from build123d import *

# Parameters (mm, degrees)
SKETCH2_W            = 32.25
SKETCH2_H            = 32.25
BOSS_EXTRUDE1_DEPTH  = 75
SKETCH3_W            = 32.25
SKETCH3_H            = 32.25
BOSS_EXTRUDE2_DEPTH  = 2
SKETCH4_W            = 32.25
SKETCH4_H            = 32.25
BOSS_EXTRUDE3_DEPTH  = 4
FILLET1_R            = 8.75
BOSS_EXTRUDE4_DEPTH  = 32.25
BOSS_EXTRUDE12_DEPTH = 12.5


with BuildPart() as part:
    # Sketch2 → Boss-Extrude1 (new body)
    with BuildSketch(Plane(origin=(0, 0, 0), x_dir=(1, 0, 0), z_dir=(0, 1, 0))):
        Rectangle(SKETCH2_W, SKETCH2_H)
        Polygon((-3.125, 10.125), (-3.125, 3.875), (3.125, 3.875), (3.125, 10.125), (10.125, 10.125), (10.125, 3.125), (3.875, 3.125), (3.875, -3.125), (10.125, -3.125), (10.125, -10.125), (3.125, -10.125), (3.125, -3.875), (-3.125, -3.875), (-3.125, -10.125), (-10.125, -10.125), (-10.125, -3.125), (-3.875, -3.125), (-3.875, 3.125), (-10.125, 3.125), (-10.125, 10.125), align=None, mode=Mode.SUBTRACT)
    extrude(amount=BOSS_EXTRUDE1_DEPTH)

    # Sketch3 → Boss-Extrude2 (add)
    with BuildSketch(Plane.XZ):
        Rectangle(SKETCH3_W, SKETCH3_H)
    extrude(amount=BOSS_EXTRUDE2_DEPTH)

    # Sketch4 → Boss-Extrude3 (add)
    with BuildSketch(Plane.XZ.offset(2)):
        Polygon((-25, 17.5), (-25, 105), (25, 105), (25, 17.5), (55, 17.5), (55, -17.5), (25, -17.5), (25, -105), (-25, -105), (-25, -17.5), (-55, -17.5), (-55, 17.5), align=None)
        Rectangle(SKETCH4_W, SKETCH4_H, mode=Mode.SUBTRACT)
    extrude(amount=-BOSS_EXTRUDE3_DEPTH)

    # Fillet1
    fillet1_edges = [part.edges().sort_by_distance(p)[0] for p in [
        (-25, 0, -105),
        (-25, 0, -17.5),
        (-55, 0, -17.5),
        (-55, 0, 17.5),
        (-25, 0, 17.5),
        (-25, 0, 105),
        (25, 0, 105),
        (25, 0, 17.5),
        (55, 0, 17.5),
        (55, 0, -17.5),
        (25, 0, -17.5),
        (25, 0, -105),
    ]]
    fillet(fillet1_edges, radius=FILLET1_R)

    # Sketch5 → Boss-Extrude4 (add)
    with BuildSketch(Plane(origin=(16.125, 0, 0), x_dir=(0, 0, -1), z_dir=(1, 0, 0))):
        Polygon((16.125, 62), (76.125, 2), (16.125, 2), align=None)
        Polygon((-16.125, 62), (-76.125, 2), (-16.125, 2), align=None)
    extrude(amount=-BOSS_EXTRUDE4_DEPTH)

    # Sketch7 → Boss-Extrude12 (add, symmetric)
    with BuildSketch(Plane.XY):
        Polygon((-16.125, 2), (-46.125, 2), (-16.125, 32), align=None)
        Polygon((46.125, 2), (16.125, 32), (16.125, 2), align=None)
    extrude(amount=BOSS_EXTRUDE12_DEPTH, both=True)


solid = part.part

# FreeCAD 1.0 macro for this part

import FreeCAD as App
import Part
import Sketcher
from FreeCAD import Vector


def edges_at(feature, points):
    """Names of the edges that pass closest to the given points."""
    edges = feature.Shape.Edges
    near = lambda p: min(range(len(edges)), key=lambda i: edges[i].distToShape(Part.Vertex(*p))[0])
    return sorted({f"Edge{near(p) + 1}" for p in points})

doc = App.newDocument("Part")
params = doc.addObject("Spreadsheet::Sheet", "Params")
for row, (alias, value) in enumerate([
    ("sketch1_width", "7 mm"),
    ("sketch1_width2", "32.25 mm"),
    ("pad1_length", "75 mm"),
    ("sketch2_width", "32.25 mm"),
    ("pad2_length", "2 mm"),
    ("sketch3_width", "30 mm"),
    ("sketch3_width2", "50 mm"),
    ("sketch3_height", "35 mm"),
    ("sketch3_height2", "87.5 mm"),
    ("sketch3_width3", "32.25 mm"),
    ("pad3_length", "4 mm"),
    ("fillet_radius", "8.75 mm"),
    ("sketch4_width", "60 mm"),
    ("pad4_length", "32.25 mm"),
    ("sketch5_width", "30 mm"),
    ("pad5_length", "25 mm"),
], start=1):
    params.set(f"A{row}", alias)
    params.set(f"B{row}", "=" + value)
    params.setAlias(f"B{row}", alias)

body = doc.addObject("PartDesign::Body", "Body")

# Sketch on XZ plane
sketch1 = doc.addObject("Sketcher::SketchObject", "Sketch")
body.addObject(sketch1)
sketch1.AttachmentSupport = (doc.XZ_Plane, [""])
sketch1.MapMode = "FlatFace"
sketch1.addGeometry([
    Part.LineSegment(Vector(-16, -16, 0), Vector(-16, 16, 0)),  # 0
    Part.LineSegment(Vector(-16, 16, 0), Vector(16, 16, 0)),  # 1
    Part.LineSegment(Vector(16, 16, 0), Vector(16, -16, 0)),  # 2
    Part.LineSegment(Vector(16, -16, 0), Vector(-16, -16, 0)),  # 3
    Part.LineSegment(Vector(-10, -10, 0), Vector(-3, -10, 0)),  # 4
    Part.LineSegment(Vector(-3, -10, 0), Vector(-3, -4, 0)),  # 5
    Part.LineSegment(Vector(-3, -4, 0), Vector(3, -4, 0)),  # 6
    Part.LineSegment(Vector(3, -4, 0), Vector(3, -10, 0)),  # 7
    Part.LineSegment(Vector(3, -10, 0), Vector(10, -10, 0)),  # 8
    Part.LineSegment(Vector(10, -10, 0), Vector(10, -3, 0)),  # 9
    Part.LineSegment(Vector(10, -3, 0), Vector(4, -3, 0)),  # 10
    Part.LineSegment(Vector(4, -3, 0), Vector(4, 3, 0)),  # 11
    Part.LineSegment(Vector(4, 3, 0), Vector(10, 3, 0)),  # 12
    Part.LineSegment(Vector(10, 3, 0), Vector(10, 10, 0)),  # 13
    Part.LineSegment(Vector(10, 10, 0), Vector(3, 10, 0)),  # 14
    Part.LineSegment(Vector(3, 10, 0), Vector(3, 4, 0)),  # 15
    Part.LineSegment(Vector(3, 4, 0), Vector(-3, 4, 0)),  # 16
    Part.LineSegment(Vector(-3, 4, 0), Vector(-3, 10, 0)),  # 17
    Part.LineSegment(Vector(-3, 10, 0), Vector(-10, 10, 0)),  # 18
    Part.LineSegment(Vector(-10, 10, 0), Vector(-10, 3, 0)),  # 19
    Part.LineSegment(Vector(-10, 3, 0), Vector(-4, 3, 0)),  # 20
    Part.LineSegment(Vector(-4, 3, 0), Vector(-4, -3, 0)),  # 21
    Part.LineSegment(Vector(-4, -3, 0), Vector(-10, -3, 0)),  # 22
    Part.LineSegment(Vector(-10, -3, 0), Vector(-10, -10, 0)),  # 23
], False)
sketch1.addConstraint([
    Sketcher.Constraint("Coincident", 0, 2, 1, 1),
    Sketcher.Constraint("Coincident", 1, 2, 2, 1),
    Sketcher.Constraint("Coincident", 2, 2, 3, 1),
    Sketcher.Constraint("Coincident", 3, 2, 0, 1),
    Sketcher.Constraint("Coincident", 4, 2, 5, 1),
    Sketcher.Constraint("Coincident", 5, 2, 6, 1),
    Sketcher.Constraint("Coincident", 6, 2, 7, 1),
    Sketcher.Constraint("Coincident", 7, 2, 8, 1),
    Sketcher.Constraint("Coincident", 8, 2, 9, 1),
    Sketcher.Constraint("Coincident", 9, 2, 10, 1),
    Sketcher.Constraint("Coincident", 10, 2, 11, 1),
    Sketcher.Constraint("Coincident", 11, 2, 12, 1),
    Sketcher.Constraint("Coincident", 12, 2, 13, 1),
    Sketcher.Constraint("Coincident", 13, 2, 14, 1),
    Sketcher.Constraint("Coincident", 14, 2, 15, 1),
    Sketcher.Constraint("Coincident", 15, 2, 16, 1),
    Sketcher.Constraint("Coincident", 16, 2, 17, 1),
    Sketcher.Constraint("Coincident", 17, 2, 18, 1),
    Sketcher.Constraint("Coincident", 18, 2, 19, 1),
    Sketcher.Constraint("Coincident", 19, 2, 20, 1),
    Sketcher.Constraint("Coincident", 20, 2, 21, 1),
    Sketcher.Constraint("Coincident", 21, 2, 22, 1),
    Sketcher.Constraint("Coincident", 22, 2, 23, 1),
    Sketcher.Constraint("Coincident", 23, 2, 4, 1),
    Sketcher.Constraint("Vertical", 0),
    Sketcher.Constraint("Horizontal", 1),
    Sketcher.Constraint("Vertical", 2),
    Sketcher.Constraint("Horizontal", 3),
    Sketcher.Constraint("Horizontal", 4),
    Sketcher.Constraint("Vertical", 5),
    Sketcher.Constraint("Horizontal", 6),
    Sketcher.Constraint("Vertical", 7),
    Sketcher.Constraint("Horizontal", 8),
    Sketcher.Constraint("Vertical", 9),
    Sketcher.Constraint("Horizontal", 10),
    Sketcher.Constraint("Vertical", 11),
    Sketcher.Constraint("Horizontal", 12),
    Sketcher.Constraint("Vertical", 13),
    Sketcher.Constraint("Horizontal", 14),
    Sketcher.Constraint("Vertical", 15),
    Sketcher.Constraint("Horizontal", 16),
    Sketcher.Constraint("Vertical", 17),
    Sketcher.Constraint("Horizontal", 18),
    Sketcher.Constraint("Vertical", 19),
    Sketcher.Constraint("Horizontal", 20),
    Sketcher.Constraint("Vertical", 21),
    Sketcher.Constraint("Horizontal", 22),
    Sketcher.Constraint("Vertical", 23),
    Sketcher.Constraint("Symmetric", 0, 2, 2, 2, -1, 1),
    Sketcher.Constraint("Symmetric", 4, 2, 14, 2, -1, 1),
    Sketcher.Constraint("Symmetric", 6, 2, 16, 2, -1, 1),
    Sketcher.Constraint("Symmetric", 8, 2, 18, 2, -1, 1),
    Sketcher.Constraint("Symmetric", 10, 2, 20, 2, -1, 1),
    Sketcher.Constraint("Symmetric", 12, 2, 22, 2, -1, 1),
    Sketcher.Constraint("Symmetric", 4, 2, 7, 2, -2),
    Sketcher.Constraint("Symmetric", 12, 2, 19, 2, -2),
    Sketcher.Constraint("Equal", 6, 10),
    Sketcher.Constraint("Equal", 3, 0),
    Sketcher.Constraint("Equal", 22, 5),
    Sketcher.Constraint("Equal", 18, 9),
    Sketcher.Constraint("Equal", 7, 11),
    Sketcher.Constraint("DistanceX", 4, 1, 4, 2, 7.0),
    Sketcher.Constraint("DistanceX", 3, 2, 4, 2, 13.0),
    Sketcher.Constraint("DistanceX", 1, 1, 1, 2, 32.25),
])
sketch1.setExpression("Constraints[61]", "Params.sketch1_width")
sketch1.setExpression("Constraints[63]", "Params.sketch1_width2")
pad1 = doc.addObject("PartDesign::Pad", "Pad")
body.addObject(pad1)
pad1.Profile = sketch1
pad1.setExpression("Length", "Params.pad1_length")
pad1.Reversed = True

# Sketch on XZ plane
sketch2 = doc.addObject("Sketcher::SketchObject", "Sketch001")
body.addObject(sketch2)
sketch2.AttachmentSupport = (doc.XZ_Plane, [""])
sketch2.MapMode = "FlatFace"
sketch2.addGeometry([
    Part.LineSegment(Vector(-16, 16, 0), Vector(-16, -16, 0)),
    Part.LineSegment(Vector(-16, -16, 0), Vector(16, -16, 0)),
    Part.LineSegment(Vector(16, -16, 0), Vector(16, 16, 0)),
    Part.LineSegment(Vector(16, 16, 0), Vector(-16, 16, 0)),
], False)
sketch2.addConstraint([
    Sketcher.Constraint("Coincident", 0, 2, 1, 1),
    Sketcher.Constraint("Coincident", 1, 2, 2, 1),
    Sketcher.Constraint("Coincident", 2, 2, 3, 1),
    Sketcher.Constraint("Coincident", 3, 2, 0, 1),
    Sketcher.Constraint("Vertical", 0),
    Sketcher.Constraint("Horizontal", 1),
    Sketcher.Constraint("Vertical", 2),
    Sketcher.Constraint("Horizontal", 3),
    Sketcher.Constraint("Symmetric", 0, 2, 2, 2, -1, 1),
    Sketcher.Constraint("Equal", 3, 0),
    Sketcher.Constraint("DistanceX", 1, 1, 1, 2, 32.25),
])
sketch2.setExpression("Constraints[10]", "Params.sketch2_width")
pad2 = doc.addObject("PartDesign::Pad", "Pad001")
body.addObject(pad2)
pad2.Profile = sketch2
pad2.setExpression("Length", "Params.pad2_length")

# Sketch on XZ plane
sketch3 = doc.addObject("Sketcher::SketchObject", "Sketch002")
body.addObject(sketch3)
sketch3.AttachmentSupport = (doc.XZ_Plane, [""])
sketch3.MapMode = "FlatFace"
sketch3.AttachmentOffset = App.Placement(Vector(0, 0, 2), App.Rotation())
sketch3.addGeometry([
    Part.LineSegment(Vector(-25, 105, 0), Vector(-25, 18, 0)),  # 0
    Part.LineSegment(Vector(-25, 18, 0), Vector(-55, 18, 0)),  # 1
    Part.LineSegment(Vector(-55, 18, 0), Vector(-55, -18, 0)),  # 2
    Part.LineSegment(Vector(-55, -18, 0), Vector(-25, -18, 0)),  # 3
    Part.LineSegment(Vector(-25, -18, 0), Vector(-25, -105, 0)),  # 4
    Part.LineSegment(Vector(-25, -105, 0), Vector(25, -105, 0)),  # 5
    Part.LineSegment(Vector(25, -105, 0), Vector(25, -18, 0)),  # 6
    Part.LineSegment(Vector(25, -18, 0), Vector(55, -18, 0)),  # 7
    Part.LineSegment(Vector(55, -18, 0), Vector(55, 18, 0)),  # 8
    Part.LineSegment(Vector(55, 18, 0), Vector(25, 18, 0)),  # 9
    Part.LineSegment(Vector(25, 18, 0), Vector(25, 105, 0)),  # 10
    Part.LineSegment(Vector(25, 105, 0), Vector(-25, 105, 0)),  # 11
    Part.LineSegment(Vector(-16, -16, 0), Vector(-16, 16, 0)),  # 12
    Part.LineSegment(Vector(-16, 16, 0), Vector(16, 16, 0)),  # 13
    Part.LineSegment(Vector(16, 16, 0), Vector(16, -16, 0)),  # 14
    Part.LineSegment(Vector(16, -16, 0), Vector(-16, -16, 0)),  # 15
], False)
sketch3.addConstraint([
    Sketcher.Constraint("Coincident", 0, 2, 1, 1),
    Sketcher.Constraint("Coincident", 1, 2, 2, 1),
    Sketcher.Constraint("Coincident", 2, 2, 3, 1),
    Sketcher.Constraint("Coincident", 3, 2, 4, 1),
    Sketcher.Constraint("Coincident", 4, 2, 5, 1),
    Sketcher.Constraint("Coincident", 5, 2, 6, 1),
    Sketcher.Constraint("Coincident", 6, 2, 7, 1),
    Sketcher.Constraint("Coincident", 7, 2, 8, 1),
    Sketcher.Constraint("Coincident", 8, 2, 9, 1),
    Sketcher.Constraint("Coincident", 9, 2, 10, 1),
    Sketcher.Constraint("Coincident", 10, 2, 11, 1),
    Sketcher.Constraint("Coincident", 11, 2, 0, 1),
    Sketcher.Constraint("Coincident", 12, 2, 13, 1),
    Sketcher.Constraint("Coincident", 13, 2, 14, 1),
    Sketcher.Constraint("Coincident", 14, 2, 15, 1),
    Sketcher.Constraint("Coincident", 15, 2, 12, 1),
    Sketcher.Constraint("Vertical", 0),
    Sketcher.Constraint("Horizontal", 1),
    Sketcher.Constraint("Vertical", 2),
    Sketcher.Constraint("Horizontal", 3),
    Sketcher.Constraint("Vertical", 4),
    Sketcher.Constraint("Horizontal", 5),
    Sketcher.Constraint("Vertical", 6),
    Sketcher.Constraint("Horizontal", 7),
    Sketcher.Constraint("Vertical", 8),
    Sketcher.Constraint("Horizontal", 9),
    Sketcher.Constraint("Vertical", 10),
    Sketcher.Constraint("Horizontal", 11),
    Sketcher.Constraint("Vertical", 12),
    Sketcher.Constraint("Horizontal", 13),
    Sketcher.Constraint("Vertical", 14),
    Sketcher.Constraint("Horizontal", 15),
    Sketcher.Constraint("Symmetric", 0, 2, 6, 2, -1, 1),
    Sketcher.Constraint("Symmetric", 2, 2, 8, 2, -1, 1),
    Sketcher.Constraint("Symmetric", 4, 2, 10, 2, -1, 1),
    Sketcher.Constraint("Symmetric", 12, 2, 14, 2, -1, 1),
    Sketcher.Constraint("Symmetric", 3, 2, 6, 2, -2),
    Sketcher.Constraint("Equal", 15, 12),
    Sketcher.Constraint("DistanceX", 1, 2, 1, 1, 30.0),
    Sketcher.Constraint("DistanceX", 5, 1, 5, 2, 50.0),
    Sketcher.Constraint("DistanceY", 2, 2, 2, 1, 35.0),
    Sketcher.Constraint("DistanceY", 0, 2, 0, 1, 87.5),
    Sketcher.Constraint("DistanceX", 13, 1, 13, 2, 32.25),
])
sketch3.setExpression("Constraints[38]", "Params.sketch3_width")
sketch3.setExpression("Constraints[39]", "Params.sketch3_width2")
sketch3.setExpression("Constraints[40]", "Params.sketch3_height")
sketch3.setExpression("Constraints[41]", "Params.sketch3_height2")
sketch3.setExpression("Constraints[42]", "Params.sketch3_width3")
pad3 = doc.addObject("PartDesign::Pad", "Pad002")
body.addObject(pad3)
pad3.Profile = sketch3
pad3.setExpression("Length", "Params.pad3_length")
pad3.Reversed = True
doc.recompute()

fillet = doc.addObject("PartDesign::Fillet", "Fillet")
body.addObject(fillet)
fillet.Base = (pad3, edges_at(pad3, [
    (-25, 0, -105),
    (-25, 0, -17.5),
    (-55, 0, -17.5),
    (-55, 0, 17.5),
    (-25, 0, 17.5),
    (-25, 0, 105),
    (25, 0, 105),
    (25, 0, 17.5),
    (55, 0, 17.5),
    (55, 0, -17.5),
    (25, 0, -17.5),
    (25, 0, -105),
]))
fillet.setExpression("Radius", "Params.fillet_radius")

# Sketch on YZ plane
sketch4 = doc.addObject("Sketcher::SketchObject", "Sketch003")
body.addObject(sketch4)
sketch4.AttachmentSupport = (doc.YZ_Plane, [""])
sketch4.MapMode = "FlatFace"
sketch4.AttachmentOffset = App.Placement(Vector(0, 0, 16.125), App.Rotation())
sketch4.addGeometry([
    Part.LineSegment(Vector(2, -76, 0), Vector(62, -16, 0)),  # 0
    Part.LineSegment(Vector(62, -16, 0), Vector(2, -16, 0)),  # 1
    Part.LineSegment(Vector(2, -16, 0), Vector(2, -76, 0)),  # 2
    Part.LineSegment(Vector(62, 16, 0), Vector(2, 76, 0)),  # 3
    Part.LineSegment(Vector(2, 76, 0), Vector(2, 16, 0)),  # 4
    Part.LineSegment(Vector(2, 16, 0), Vector(62, 16, 0)),  # 5
], False)
sketch4.addConstraint([
    Sketcher.Constraint("Coincident", 0, 2, 1, 1),
    Sketcher.Constraint("Coincident", 1, 2, 2, 1),
    Sketcher.Constraint("Coincident", 2, 2, 0, 1),
    Sketcher.Constraint("Coincident", 3, 2, 4, 1),
    Sketcher.Constraint("Coincident", 4, 2, 5, 1),
    Sketcher.Constraint("Coincident", 5, 2, 3, 1),
    Sketcher.Constraint("Horizontal", 1),
    Sketcher.Constraint("Vertical", 2),
    Sketcher.Constraint("Vertical", 4),
    Sketcher.Constraint("Horizontal", 5),
    Sketcher.Constraint("Symmetric", 2, 2, 3, 2, -1),
    Sketcher.Constraint("Symmetric", 0, 2, 5, 2, -1),
    Sketcher.Constraint("Perpendicular", 0, 3),
    Sketcher.Constraint("DistanceX", 1, 2, 1, 1, 60.0),
    Sketcher.Constraint("DistanceX", -1, 1, 0, 2, 62.0),
    Sketcher.Constraint("DistanceY", 1, 2, 3, 2, 92.25),
])
sketch4.setExpression("Constraints[13]", "Params.sketch4_width")
pad4 = doc.addObject("PartDesign::Pad", "Pad003")
body.addObject(pad4)
pad4.Profile = sketch4
pad4.setExpression("Length", "Params.pad4_length")
pad4.Reversed = True

# Sketch on XY plane
sketch5 = doc.addObject("Sketcher::SketchObject", "Sketch004")
body.addObject(sketch5)
sketch5.AttachmentSupport = (doc.XY_Plane, [""])
sketch5.MapMode = "FlatFace"
sketch5.addGeometry([
    Part.LineSegment(Vector(-46, 2, 0), Vector(-16, 2, 0)),  # 0
    Part.LineSegment(Vector(-16, 2, 0), Vector(-16, 32, 0)),  # 1
    Part.LineSegment(Vector(-16, 32, 0), Vector(-46, 2, 0)),  # 2
    Part.LineSegment(Vector(46, 2, 0), Vector(16, 32, 0)),  # 3
    Part.LineSegment(Vector(16, 32, 0), Vector(16, 2, 0)),  # 4
    Part.LineSegment(Vector(16, 2, 0), Vector(46, 2, 0)),  # 5
], False)
sketch5.addConstraint([
    Sketcher.Constraint("Coincident", 0, 2, 1, 1),
    Sketcher.Constraint("Coincident", 1, 2, 2, 1),
    Sketcher.Constraint("Coincident", 2, 2, 0, 1),
    Sketcher.Constraint("Coincident", 3, 2, 4, 1),
    Sketcher.Constraint("Coincident", 4, 2, 5, 1),
    Sketcher.Constraint("Coincident", 5, 2, 3, 1),
    Sketcher.Constraint("Horizontal", 0),
    Sketcher.Constraint("Vertical", 1),
    Sketcher.Constraint("Vertical", 4),
    Sketcher.Constraint("Horizontal", 5),
    Sketcher.Constraint("Symmetric", 1, 2, 3, 2, -2),
    Sketcher.Constraint("Symmetric", 2, 2, 5, 2, -2),
    Sketcher.Constraint("Perpendicular", 2, 3),
    Sketcher.Constraint("DistanceX", 0, 1, 0, 2, 30.0),
    Sketcher.Constraint("DistanceY", -1, 1, 0, 2, 2.0),
    Sketcher.Constraint("DistanceX", 1, 2, 3, 2, 32.25),
])
sketch5.setExpression("Constraints[13]", "Params.sketch5_width")
pad5 = doc.addObject("PartDesign::Pad", "Pad004")
body.addObject(pad5)
pad5.Profile = sketch5
pad5.setExpression("Length", "Params.pad5_length")
pad5.Midplane = True

doc.recompute()
